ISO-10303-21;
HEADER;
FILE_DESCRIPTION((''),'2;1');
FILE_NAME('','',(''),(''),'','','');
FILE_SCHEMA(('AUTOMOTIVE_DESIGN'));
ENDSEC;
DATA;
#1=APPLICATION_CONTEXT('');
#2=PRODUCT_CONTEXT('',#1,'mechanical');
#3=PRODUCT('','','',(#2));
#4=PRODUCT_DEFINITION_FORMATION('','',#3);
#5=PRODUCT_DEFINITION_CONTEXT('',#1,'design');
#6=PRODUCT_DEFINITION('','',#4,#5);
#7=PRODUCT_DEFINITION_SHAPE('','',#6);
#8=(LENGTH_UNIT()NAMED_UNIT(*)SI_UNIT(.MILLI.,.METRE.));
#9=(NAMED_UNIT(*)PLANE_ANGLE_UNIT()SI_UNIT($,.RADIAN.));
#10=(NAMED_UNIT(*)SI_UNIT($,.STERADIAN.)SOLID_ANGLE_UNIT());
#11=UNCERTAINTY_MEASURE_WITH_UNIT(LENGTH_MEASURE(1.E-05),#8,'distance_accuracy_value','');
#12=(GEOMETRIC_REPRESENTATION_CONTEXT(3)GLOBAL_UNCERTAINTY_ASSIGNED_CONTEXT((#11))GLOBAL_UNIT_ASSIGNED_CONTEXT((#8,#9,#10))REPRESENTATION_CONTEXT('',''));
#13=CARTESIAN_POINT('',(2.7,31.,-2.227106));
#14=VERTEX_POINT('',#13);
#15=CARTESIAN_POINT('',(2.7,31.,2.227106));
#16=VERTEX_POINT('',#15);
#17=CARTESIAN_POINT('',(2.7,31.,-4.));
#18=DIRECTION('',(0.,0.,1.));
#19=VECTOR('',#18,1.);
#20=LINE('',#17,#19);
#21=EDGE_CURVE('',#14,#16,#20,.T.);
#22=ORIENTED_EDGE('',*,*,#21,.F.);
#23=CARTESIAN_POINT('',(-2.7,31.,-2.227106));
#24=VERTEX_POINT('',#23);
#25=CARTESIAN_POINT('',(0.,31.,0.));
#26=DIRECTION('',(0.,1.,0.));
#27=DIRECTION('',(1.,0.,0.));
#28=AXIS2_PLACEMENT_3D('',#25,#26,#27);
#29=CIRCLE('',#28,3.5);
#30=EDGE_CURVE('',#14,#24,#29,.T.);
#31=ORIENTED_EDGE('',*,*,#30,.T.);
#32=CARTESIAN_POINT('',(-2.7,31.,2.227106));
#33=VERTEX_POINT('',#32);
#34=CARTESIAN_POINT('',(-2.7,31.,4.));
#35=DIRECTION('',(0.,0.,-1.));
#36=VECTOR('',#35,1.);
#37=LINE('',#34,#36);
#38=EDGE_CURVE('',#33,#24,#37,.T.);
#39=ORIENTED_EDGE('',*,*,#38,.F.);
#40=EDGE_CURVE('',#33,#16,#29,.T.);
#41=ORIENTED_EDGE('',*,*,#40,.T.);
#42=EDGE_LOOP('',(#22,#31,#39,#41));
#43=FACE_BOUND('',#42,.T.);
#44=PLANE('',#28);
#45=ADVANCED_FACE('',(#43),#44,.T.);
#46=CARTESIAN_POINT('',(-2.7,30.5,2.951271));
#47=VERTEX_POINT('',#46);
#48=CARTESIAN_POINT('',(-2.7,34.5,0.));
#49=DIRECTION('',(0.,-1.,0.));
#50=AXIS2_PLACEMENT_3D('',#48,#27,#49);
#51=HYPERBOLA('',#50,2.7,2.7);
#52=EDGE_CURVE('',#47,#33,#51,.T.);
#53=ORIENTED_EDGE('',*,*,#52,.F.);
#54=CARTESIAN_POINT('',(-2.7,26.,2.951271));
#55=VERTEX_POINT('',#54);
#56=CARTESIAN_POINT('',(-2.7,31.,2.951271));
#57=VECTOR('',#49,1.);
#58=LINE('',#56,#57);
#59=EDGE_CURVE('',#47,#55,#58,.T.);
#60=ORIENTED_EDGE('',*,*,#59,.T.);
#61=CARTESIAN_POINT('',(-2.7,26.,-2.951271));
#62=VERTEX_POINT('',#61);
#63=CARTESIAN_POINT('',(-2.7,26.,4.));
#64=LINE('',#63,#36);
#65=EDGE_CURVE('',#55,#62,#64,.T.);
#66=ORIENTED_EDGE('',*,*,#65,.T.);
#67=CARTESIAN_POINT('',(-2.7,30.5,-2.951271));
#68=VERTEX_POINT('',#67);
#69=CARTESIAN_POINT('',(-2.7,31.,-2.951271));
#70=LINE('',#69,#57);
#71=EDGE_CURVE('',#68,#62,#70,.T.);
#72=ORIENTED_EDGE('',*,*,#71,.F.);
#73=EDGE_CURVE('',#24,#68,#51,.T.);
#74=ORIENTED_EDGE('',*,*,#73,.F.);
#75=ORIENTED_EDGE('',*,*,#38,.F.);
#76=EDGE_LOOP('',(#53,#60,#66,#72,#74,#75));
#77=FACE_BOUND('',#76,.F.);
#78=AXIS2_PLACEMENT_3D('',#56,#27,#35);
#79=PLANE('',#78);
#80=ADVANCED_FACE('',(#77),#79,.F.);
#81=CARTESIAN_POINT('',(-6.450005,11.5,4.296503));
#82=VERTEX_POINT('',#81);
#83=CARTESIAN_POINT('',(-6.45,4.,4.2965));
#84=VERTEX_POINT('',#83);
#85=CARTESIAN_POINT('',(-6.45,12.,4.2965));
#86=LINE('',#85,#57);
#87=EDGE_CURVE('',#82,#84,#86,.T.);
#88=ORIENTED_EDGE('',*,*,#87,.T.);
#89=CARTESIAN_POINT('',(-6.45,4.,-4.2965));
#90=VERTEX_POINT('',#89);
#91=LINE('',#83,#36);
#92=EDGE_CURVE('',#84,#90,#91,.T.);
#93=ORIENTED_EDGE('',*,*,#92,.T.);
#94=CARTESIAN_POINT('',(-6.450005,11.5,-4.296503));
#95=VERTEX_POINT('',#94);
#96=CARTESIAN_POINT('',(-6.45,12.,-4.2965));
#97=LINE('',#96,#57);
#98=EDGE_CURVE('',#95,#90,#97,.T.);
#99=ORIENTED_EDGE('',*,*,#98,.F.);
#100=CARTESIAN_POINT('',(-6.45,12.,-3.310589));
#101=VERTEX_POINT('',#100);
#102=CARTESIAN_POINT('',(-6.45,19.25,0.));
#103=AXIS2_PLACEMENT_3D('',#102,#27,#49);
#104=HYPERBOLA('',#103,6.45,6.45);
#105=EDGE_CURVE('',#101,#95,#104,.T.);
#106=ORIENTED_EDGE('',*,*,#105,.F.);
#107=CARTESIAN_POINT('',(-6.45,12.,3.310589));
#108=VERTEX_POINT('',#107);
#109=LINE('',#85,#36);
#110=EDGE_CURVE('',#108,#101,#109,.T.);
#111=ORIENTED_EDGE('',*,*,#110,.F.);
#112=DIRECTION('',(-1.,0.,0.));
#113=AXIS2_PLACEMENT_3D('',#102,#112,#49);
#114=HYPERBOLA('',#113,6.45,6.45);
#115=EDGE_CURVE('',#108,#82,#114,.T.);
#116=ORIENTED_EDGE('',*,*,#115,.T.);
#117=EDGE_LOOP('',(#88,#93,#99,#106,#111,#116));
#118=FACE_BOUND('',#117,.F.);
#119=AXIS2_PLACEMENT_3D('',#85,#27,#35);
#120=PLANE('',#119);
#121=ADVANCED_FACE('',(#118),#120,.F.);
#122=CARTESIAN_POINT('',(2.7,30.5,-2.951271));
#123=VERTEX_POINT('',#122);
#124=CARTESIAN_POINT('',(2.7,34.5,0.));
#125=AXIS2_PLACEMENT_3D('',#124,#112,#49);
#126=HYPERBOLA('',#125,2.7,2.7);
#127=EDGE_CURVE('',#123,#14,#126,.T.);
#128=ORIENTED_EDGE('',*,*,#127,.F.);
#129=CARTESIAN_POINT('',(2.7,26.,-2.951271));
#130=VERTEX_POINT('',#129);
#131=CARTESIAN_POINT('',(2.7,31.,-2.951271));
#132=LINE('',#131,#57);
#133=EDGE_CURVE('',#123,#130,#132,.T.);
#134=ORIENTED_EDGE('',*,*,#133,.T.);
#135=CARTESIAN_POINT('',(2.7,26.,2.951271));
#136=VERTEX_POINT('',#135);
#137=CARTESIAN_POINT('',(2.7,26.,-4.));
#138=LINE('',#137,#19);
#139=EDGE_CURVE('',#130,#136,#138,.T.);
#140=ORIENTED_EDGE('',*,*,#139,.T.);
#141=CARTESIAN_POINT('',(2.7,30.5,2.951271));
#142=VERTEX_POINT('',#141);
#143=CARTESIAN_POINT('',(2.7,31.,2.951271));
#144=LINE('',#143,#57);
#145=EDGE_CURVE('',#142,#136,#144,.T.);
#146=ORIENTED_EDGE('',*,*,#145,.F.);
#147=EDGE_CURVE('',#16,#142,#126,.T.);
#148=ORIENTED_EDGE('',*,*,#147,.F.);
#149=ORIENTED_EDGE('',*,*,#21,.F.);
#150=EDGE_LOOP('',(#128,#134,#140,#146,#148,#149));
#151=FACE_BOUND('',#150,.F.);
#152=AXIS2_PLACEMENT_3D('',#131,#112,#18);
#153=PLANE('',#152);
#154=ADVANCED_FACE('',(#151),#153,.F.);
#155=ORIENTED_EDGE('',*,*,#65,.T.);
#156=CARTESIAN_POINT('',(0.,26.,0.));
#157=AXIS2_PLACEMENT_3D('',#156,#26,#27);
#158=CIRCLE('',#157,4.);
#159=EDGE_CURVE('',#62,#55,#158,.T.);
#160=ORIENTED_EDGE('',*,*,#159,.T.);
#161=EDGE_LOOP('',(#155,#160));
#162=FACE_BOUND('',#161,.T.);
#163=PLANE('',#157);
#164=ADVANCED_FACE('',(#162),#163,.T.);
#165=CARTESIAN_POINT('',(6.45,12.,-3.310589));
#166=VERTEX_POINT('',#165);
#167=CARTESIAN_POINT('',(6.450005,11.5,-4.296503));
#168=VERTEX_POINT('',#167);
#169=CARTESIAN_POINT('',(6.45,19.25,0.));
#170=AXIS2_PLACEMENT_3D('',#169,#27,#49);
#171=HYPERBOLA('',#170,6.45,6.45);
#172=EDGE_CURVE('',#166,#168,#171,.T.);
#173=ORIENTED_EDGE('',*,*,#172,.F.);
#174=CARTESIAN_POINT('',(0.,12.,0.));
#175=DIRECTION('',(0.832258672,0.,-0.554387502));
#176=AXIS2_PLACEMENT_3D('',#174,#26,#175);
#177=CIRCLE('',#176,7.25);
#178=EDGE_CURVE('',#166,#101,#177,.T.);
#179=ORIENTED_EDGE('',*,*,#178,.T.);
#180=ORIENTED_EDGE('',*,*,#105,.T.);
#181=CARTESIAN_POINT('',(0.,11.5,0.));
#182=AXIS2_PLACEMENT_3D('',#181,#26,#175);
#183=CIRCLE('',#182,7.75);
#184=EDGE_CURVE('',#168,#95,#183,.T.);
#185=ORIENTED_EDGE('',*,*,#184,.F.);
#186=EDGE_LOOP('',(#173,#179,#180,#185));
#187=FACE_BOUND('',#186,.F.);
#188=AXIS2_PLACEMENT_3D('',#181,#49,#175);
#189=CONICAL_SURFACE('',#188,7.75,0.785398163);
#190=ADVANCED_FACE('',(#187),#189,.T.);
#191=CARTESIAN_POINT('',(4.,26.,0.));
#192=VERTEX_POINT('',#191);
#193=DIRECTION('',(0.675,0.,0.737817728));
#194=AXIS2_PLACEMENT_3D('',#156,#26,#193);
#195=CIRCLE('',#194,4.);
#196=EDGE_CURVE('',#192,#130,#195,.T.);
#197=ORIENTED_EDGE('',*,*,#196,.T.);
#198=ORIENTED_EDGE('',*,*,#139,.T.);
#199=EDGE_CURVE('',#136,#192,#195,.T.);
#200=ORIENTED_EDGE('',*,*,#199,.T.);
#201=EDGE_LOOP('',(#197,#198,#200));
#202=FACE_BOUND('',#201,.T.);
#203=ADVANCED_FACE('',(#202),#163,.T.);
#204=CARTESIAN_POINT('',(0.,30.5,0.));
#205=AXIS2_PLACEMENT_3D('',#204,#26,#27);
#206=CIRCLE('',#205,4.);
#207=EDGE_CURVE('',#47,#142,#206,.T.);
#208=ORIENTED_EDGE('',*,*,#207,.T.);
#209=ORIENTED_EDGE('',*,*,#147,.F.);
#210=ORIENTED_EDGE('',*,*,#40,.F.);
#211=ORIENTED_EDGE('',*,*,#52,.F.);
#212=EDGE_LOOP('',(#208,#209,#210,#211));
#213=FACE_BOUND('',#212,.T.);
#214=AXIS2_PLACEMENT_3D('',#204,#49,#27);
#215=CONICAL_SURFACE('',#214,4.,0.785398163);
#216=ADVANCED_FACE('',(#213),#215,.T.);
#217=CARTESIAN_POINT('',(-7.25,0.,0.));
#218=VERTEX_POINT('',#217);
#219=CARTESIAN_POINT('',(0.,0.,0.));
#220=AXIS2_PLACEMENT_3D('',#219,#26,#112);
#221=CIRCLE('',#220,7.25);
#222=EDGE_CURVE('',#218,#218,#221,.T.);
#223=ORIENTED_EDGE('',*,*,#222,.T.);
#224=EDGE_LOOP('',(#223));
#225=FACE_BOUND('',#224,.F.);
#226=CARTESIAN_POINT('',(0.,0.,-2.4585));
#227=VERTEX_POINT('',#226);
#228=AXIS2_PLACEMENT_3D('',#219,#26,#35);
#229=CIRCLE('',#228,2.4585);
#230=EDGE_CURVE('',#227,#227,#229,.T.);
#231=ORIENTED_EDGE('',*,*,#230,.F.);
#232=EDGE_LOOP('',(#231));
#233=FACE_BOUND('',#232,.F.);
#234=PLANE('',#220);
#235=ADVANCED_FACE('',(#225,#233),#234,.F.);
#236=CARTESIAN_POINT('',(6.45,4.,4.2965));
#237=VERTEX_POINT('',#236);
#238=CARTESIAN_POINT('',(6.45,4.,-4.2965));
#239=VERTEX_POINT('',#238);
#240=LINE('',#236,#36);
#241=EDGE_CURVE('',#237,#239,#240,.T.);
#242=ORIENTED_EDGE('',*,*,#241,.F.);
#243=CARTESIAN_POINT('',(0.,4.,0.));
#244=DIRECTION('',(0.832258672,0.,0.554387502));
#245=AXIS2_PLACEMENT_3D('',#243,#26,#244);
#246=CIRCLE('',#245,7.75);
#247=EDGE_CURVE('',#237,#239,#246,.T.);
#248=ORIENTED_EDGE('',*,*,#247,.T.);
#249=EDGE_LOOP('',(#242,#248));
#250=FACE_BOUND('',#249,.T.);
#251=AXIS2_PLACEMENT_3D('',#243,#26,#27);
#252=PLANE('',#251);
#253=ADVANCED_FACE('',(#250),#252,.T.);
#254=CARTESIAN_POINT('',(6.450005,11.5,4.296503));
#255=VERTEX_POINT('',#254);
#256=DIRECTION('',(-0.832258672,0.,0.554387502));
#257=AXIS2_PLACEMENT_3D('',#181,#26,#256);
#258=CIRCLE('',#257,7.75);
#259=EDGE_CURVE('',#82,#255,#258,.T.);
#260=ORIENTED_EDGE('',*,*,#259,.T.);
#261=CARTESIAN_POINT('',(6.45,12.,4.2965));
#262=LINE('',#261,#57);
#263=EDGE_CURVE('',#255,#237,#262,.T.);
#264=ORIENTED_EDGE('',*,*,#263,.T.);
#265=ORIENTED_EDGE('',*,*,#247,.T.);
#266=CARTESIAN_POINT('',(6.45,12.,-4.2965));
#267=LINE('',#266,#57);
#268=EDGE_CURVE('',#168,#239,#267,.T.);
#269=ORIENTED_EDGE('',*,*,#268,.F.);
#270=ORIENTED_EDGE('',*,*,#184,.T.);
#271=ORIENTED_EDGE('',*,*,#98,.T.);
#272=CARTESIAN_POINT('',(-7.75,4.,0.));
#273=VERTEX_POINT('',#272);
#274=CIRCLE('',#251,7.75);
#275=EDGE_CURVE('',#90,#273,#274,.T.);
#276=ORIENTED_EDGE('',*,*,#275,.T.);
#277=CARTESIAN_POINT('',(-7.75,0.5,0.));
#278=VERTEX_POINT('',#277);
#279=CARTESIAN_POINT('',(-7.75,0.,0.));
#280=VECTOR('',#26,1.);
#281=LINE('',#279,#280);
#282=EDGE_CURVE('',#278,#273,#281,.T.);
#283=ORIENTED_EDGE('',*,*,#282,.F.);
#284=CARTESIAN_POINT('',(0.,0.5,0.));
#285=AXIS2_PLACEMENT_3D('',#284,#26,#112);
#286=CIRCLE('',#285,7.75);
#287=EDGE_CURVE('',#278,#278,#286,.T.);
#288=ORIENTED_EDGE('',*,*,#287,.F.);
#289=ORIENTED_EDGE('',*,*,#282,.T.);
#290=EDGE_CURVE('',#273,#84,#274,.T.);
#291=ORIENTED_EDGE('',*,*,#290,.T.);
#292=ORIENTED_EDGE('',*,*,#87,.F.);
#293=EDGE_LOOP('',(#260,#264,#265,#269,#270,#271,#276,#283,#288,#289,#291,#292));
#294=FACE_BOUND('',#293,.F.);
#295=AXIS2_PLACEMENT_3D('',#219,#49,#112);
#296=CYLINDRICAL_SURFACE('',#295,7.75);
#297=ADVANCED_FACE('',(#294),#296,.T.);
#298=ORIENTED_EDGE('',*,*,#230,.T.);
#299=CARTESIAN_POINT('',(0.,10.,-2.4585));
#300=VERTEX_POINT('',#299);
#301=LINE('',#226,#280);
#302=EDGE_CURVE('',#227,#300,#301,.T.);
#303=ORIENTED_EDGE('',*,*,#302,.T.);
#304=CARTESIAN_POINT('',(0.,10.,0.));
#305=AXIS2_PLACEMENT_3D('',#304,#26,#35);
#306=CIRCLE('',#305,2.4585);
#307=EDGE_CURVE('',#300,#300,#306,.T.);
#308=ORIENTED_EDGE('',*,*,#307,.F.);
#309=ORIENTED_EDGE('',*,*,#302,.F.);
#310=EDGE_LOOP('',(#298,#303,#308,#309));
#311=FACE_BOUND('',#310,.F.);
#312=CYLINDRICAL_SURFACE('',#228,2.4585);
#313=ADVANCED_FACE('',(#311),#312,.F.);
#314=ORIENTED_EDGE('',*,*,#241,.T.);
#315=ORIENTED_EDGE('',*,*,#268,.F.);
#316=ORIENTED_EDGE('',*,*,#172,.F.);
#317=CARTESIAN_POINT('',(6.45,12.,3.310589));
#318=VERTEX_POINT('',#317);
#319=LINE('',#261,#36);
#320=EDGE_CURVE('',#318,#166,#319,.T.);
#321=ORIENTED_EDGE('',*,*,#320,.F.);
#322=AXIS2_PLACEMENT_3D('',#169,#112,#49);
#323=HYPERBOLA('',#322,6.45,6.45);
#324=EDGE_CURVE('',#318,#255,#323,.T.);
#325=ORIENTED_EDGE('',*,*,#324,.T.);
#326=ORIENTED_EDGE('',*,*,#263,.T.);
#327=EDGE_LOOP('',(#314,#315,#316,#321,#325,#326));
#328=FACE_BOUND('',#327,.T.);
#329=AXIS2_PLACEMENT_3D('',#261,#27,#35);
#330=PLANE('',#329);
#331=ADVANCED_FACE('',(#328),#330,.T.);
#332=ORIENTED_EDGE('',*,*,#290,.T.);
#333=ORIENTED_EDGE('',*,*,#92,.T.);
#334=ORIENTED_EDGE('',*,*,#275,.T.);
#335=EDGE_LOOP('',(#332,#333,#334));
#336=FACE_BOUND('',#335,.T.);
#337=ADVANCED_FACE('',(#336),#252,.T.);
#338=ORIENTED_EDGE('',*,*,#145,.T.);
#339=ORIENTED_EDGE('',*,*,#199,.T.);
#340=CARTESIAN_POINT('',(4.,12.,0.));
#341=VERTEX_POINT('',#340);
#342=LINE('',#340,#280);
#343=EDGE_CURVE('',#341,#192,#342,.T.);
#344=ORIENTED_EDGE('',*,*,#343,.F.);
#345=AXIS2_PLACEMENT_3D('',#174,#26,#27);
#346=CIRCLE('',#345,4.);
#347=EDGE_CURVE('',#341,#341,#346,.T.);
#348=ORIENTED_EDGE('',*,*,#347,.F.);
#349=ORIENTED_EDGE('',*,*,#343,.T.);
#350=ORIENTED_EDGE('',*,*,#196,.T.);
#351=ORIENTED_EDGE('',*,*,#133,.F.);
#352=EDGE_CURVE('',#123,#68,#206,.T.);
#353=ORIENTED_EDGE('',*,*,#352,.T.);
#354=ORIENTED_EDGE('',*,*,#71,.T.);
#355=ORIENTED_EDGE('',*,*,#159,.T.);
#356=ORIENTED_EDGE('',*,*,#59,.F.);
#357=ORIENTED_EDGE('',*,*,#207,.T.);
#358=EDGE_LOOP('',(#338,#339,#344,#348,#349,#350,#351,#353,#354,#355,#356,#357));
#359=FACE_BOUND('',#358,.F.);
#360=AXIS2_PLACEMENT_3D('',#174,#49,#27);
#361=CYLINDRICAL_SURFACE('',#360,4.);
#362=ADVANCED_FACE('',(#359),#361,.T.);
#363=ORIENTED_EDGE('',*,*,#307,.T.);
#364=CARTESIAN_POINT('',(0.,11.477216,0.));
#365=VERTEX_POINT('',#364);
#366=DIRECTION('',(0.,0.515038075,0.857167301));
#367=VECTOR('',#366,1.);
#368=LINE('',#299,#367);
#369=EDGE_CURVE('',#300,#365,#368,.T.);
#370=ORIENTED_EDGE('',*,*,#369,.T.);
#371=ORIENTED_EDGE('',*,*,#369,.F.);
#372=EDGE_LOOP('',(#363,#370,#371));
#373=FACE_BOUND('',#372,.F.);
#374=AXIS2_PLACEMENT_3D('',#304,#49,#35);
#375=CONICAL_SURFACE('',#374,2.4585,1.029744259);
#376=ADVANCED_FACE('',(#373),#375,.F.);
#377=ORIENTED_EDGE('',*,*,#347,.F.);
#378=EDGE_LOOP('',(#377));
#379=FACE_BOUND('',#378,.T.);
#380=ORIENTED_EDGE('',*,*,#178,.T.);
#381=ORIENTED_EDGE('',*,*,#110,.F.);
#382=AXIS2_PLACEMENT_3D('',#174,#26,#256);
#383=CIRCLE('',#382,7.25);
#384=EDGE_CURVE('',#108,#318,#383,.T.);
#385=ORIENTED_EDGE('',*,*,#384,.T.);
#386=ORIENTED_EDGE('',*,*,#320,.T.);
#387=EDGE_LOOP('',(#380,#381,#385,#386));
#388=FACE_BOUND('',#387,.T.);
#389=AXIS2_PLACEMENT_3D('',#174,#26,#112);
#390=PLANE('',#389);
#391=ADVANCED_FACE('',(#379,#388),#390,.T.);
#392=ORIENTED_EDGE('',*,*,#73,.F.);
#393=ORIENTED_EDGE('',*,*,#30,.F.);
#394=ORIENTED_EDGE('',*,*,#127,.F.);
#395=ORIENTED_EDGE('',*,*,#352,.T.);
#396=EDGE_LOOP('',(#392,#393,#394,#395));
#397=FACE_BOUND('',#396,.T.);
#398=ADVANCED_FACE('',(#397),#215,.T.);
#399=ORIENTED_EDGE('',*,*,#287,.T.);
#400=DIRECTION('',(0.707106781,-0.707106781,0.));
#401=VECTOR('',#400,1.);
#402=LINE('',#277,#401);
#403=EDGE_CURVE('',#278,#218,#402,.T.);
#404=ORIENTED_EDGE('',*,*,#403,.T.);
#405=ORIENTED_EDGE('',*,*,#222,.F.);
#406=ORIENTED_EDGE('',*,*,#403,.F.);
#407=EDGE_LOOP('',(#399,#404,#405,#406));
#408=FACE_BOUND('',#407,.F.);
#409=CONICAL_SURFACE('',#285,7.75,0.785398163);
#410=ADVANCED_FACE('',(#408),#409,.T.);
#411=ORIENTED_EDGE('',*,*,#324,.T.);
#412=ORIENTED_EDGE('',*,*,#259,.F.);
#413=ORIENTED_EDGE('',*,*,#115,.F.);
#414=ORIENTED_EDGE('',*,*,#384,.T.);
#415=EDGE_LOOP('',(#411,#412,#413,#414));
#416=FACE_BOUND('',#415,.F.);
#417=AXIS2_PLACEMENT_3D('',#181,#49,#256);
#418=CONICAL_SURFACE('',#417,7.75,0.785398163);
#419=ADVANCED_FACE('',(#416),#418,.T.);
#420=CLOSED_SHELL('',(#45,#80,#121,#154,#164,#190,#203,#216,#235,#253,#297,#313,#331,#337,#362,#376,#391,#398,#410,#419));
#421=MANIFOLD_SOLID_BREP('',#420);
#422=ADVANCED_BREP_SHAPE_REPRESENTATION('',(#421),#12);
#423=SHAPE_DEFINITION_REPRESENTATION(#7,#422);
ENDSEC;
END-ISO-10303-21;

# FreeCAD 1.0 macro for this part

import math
import FreeCAD as App
import Part
import Sketcher
Q = App.Units.Quantity


def edges_at(feature, points):
    """Names of the edges that pass closest to the given points."""
    edges = feature.Shape.Edges
    near = lambda p: min(range(len(edges)), key=lambda i: edges[i].distToShape(Part.Vertex(*p))[0])
    return sorted({f"Edge{near(p) + 1}" for p in points})

doc = App.newDocument("Part")
body = doc.addObject("PartDesign::Body", "Body")

# Sketch on XZ plane
sketch1 = body.newObject("Sketcher::SketchObject", "Sketch")
sketch1.AttachmentSupport = (doc.getObject("XZ_Plane"), [""])
sketch1.MapMode = "FlatFace"
sketch1.addGeometry(Part.Circle(App.Vector(0, 0, 0), App.Vector(0, 0, 1), 8), False)
sketch1.addConstraint([
    Sketcher.Constraint("Coincident", 0, 3, -1, 1),
    Sketcher.Constraint("Diameter", 0, Q("15.5 mm")),
])
pad1 = body.newObject("PartDesign::Pad", "Pad")
pad1.Profile = sketch1
pad1.Length = 12
pad1.Reversed = True

# Sketch on XZ plane
sketch2 = body.newObject("Sketcher::SketchObject", "Sketch001")
sketch2.AttachmentSupport = (doc.getObject("XZ_Plane"), [""])
sketch2.MapMode = "FlatFace"
sketch2.AttachmentOffset = App.Placement(App.Vector(0, 0, -12), App.Rotation())
sketch2.addGeometry([
    Part.ArcOfCircle(Part.Circle(App.Vector(0, 0, 0), App.Vector(0, 0, 1), 8), math.radians(-34), math.radians(34)),
    Part.LineSegment(App.Vector(6, 4, 0), App.Vector(6, -4, 0)),
    Part.LineSegment(App.Vector(-6, 4, 0), App.Vector(-6, -4, 0)),
    Part.ArcOfCircle(Part.Circle(App.Vector(0, 0, 0), App.Vector(0, 0, 1), 8), math.radians(146), math.radians(214)),
], False)
sketch2.addConstraint([
    Sketcher.Constraint("Coincident", 0, 1, 1, 2),
    Sketcher.Constraint("Coincident", 1, 1, 0, 2),
    Sketcher.Constraint("Coincident", 2, 1, 3, 1),
    Sketcher.Constraint("Coincident", 3, 2, 2, 2),
    Sketcher.Constraint("Vertical", 1),
    Sketcher.Constraint("Vertical", 2),
    Sketcher.Constraint("Coincident", 0, 3, -1, 1),
    Sketcher.Constraint("Coincident", 3, 3, -1, 1),
    Sketcher.Constraint("Equal", 0, 3),
    Sketcher.Constraint("Horizontal", 1, 1, 2, 1),
    Sketcher.Constraint("DistanceX", 2, 1, 1, 1, Q("12.9 mm")),
    Sketcher.Constraint("Radius", 0, Q("7.75 mm")),
])
pocket1 = body.newObject("PartDesign::Pocket", "Pocket")
pocket1.Profile = sketch2
pocket1.Length = 8
pocket1.Reversed = True

# Sketch on XZ plane
sketch3 = body.newObject("Sketcher::SketchObject", "Sketch002")
sketch3.AttachmentSupport = (doc.getObject("XZ_Plane"), [""])
sketch3.MapMode = "FlatFace"
sketch3.AttachmentOffset = App.Placement(App.Vector(0, 0, -12), App.Rotation())
sketch3.addGeometry(Part.Circle(App.Vector(0, 0, 0), App.Vector(0, 0, 1), 4), False)
sketch3.addConstraint([
    Sketcher.Constraint("Coincident", 0, 3, -1, 1),
    Sketcher.Constraint("Diameter", 0, Q("8 mm")),
])
pad2 = body.newObject("PartDesign::Pad", "Pad001")
pad2.Profile = sketch3
pad2.Length = 19
pad2.Reversed = True
doc.recompute()

chamfer = body.newObject("PartDesign::Chamfer", "Chamfer")
chamfer.Base = (pad2, edges_at(pad2, [(-4, 31, 0)]))
chamfer.Size = 0.5
doc.recompute()

chamfer2 = body.newObject("PartDesign::Chamfer", "Chamfer001")
chamfer2.Base = (chamfer, edges_at(chamfer, [(0, 12, 7.75), (0, 12, -7.75), (7.75, 0, 0)]))
chamfer2.Size = 0.5

# Sketch on XZ plane
sketch4 = body.newObject("Sketcher::SketchObject", "Sketch003")
sketch4.AttachmentSupport = (doc.getObject("XZ_Plane"), [""])
sketch4.MapMode = "FlatFace"
sketch4.addGeometry(Part.Circle(App.Vector(0, 0, 0), App.Vector(0, 0, 1), 2.5), False)
sketch4.addConstraint([
    Sketcher.Constraint("Coincident", 0, 3, -1, 1),
    Sketcher.Constraint("Diameter", 0, Q("4.917 mm")),
])
doc.recompute()
hole = body.newObject("PartDesign::Hole", "Hole")
hole.Profile = sketch4
hole.ThreadType = "None"
hole.Diameter = 4.917
hole.DepthType = "Dimension"
hole.Depth = 10
hole.DrillPoint = "Angled"
hole.DrillPointAngle = 118

# Sketch on XZ plane
sketch5 = body.newObject("Sketcher::SketchObject", "Sketch004")
sketch5.AttachmentSupport = (doc.getObject("XZ_Plane"), [""])
sketch5.MapMode = "FlatFace"
sketch5.AttachmentOffset = App.Placement(App.Vector(0, 0, -31), App.Rotation())
sketch5.addGeometry([
    Part.ArcOfCircle(Part.Circle(App.Vector(0, 0, 0), App.Vector(0, 0, 1), 4), math.radians(-48), math.radians(48)),
    Part.LineSegment(App.Vector(2.7, -3, 0), App.Vector(2.7, 3, 0)),
    Part.LineSegment(App.Vector(-2.7, 3, 0), App.Vector(-2.7, -3, 0)),
    Part.ArcOfCircle(Part.Circle(App.Vector(0, 0, 0), App.Vector(0, 0, 1), 4), math.radians(132), math.radians(228)),
], False)
sketch5.addConstraint([
    Sketcher.Constraint("Coincident", 0, 1, 1, 1),
    Sketcher.Constraint("Coincident", 1, 2, 0, 2),
    Sketcher.Constraint("Coincident", 2, 1, 3, 1),
    Sketcher.Constraint("Coincident", 3, 2, 2, 2),
    Sketcher.Constraint("Vertical", 1),
    Sketcher.Constraint("Vertical", 2),
    Sketcher.Constraint("Coincident", 0, 3, -1, 1),
    Sketcher.Constraint("Coincident", 3, 3, -1, 1),
    Sketcher.Constraint("Equal", 0, 3),
    Sketcher.Constraint("Horizontal", 1, 2, 2, 1),
    Sketcher.Constraint("Radius", 0, Q("4 mm")),
    Sketcher.Constraint("DistanceX", 2, 1, 1, 2, Q("5.4 mm")),
])
pocket2 = body.newObject("PartDesign::Pocket", "Pocket001")
pocket2.Profile = sketch5
pocket2.Length = 5
pocket2.Reversed = True

doc.recompute()
